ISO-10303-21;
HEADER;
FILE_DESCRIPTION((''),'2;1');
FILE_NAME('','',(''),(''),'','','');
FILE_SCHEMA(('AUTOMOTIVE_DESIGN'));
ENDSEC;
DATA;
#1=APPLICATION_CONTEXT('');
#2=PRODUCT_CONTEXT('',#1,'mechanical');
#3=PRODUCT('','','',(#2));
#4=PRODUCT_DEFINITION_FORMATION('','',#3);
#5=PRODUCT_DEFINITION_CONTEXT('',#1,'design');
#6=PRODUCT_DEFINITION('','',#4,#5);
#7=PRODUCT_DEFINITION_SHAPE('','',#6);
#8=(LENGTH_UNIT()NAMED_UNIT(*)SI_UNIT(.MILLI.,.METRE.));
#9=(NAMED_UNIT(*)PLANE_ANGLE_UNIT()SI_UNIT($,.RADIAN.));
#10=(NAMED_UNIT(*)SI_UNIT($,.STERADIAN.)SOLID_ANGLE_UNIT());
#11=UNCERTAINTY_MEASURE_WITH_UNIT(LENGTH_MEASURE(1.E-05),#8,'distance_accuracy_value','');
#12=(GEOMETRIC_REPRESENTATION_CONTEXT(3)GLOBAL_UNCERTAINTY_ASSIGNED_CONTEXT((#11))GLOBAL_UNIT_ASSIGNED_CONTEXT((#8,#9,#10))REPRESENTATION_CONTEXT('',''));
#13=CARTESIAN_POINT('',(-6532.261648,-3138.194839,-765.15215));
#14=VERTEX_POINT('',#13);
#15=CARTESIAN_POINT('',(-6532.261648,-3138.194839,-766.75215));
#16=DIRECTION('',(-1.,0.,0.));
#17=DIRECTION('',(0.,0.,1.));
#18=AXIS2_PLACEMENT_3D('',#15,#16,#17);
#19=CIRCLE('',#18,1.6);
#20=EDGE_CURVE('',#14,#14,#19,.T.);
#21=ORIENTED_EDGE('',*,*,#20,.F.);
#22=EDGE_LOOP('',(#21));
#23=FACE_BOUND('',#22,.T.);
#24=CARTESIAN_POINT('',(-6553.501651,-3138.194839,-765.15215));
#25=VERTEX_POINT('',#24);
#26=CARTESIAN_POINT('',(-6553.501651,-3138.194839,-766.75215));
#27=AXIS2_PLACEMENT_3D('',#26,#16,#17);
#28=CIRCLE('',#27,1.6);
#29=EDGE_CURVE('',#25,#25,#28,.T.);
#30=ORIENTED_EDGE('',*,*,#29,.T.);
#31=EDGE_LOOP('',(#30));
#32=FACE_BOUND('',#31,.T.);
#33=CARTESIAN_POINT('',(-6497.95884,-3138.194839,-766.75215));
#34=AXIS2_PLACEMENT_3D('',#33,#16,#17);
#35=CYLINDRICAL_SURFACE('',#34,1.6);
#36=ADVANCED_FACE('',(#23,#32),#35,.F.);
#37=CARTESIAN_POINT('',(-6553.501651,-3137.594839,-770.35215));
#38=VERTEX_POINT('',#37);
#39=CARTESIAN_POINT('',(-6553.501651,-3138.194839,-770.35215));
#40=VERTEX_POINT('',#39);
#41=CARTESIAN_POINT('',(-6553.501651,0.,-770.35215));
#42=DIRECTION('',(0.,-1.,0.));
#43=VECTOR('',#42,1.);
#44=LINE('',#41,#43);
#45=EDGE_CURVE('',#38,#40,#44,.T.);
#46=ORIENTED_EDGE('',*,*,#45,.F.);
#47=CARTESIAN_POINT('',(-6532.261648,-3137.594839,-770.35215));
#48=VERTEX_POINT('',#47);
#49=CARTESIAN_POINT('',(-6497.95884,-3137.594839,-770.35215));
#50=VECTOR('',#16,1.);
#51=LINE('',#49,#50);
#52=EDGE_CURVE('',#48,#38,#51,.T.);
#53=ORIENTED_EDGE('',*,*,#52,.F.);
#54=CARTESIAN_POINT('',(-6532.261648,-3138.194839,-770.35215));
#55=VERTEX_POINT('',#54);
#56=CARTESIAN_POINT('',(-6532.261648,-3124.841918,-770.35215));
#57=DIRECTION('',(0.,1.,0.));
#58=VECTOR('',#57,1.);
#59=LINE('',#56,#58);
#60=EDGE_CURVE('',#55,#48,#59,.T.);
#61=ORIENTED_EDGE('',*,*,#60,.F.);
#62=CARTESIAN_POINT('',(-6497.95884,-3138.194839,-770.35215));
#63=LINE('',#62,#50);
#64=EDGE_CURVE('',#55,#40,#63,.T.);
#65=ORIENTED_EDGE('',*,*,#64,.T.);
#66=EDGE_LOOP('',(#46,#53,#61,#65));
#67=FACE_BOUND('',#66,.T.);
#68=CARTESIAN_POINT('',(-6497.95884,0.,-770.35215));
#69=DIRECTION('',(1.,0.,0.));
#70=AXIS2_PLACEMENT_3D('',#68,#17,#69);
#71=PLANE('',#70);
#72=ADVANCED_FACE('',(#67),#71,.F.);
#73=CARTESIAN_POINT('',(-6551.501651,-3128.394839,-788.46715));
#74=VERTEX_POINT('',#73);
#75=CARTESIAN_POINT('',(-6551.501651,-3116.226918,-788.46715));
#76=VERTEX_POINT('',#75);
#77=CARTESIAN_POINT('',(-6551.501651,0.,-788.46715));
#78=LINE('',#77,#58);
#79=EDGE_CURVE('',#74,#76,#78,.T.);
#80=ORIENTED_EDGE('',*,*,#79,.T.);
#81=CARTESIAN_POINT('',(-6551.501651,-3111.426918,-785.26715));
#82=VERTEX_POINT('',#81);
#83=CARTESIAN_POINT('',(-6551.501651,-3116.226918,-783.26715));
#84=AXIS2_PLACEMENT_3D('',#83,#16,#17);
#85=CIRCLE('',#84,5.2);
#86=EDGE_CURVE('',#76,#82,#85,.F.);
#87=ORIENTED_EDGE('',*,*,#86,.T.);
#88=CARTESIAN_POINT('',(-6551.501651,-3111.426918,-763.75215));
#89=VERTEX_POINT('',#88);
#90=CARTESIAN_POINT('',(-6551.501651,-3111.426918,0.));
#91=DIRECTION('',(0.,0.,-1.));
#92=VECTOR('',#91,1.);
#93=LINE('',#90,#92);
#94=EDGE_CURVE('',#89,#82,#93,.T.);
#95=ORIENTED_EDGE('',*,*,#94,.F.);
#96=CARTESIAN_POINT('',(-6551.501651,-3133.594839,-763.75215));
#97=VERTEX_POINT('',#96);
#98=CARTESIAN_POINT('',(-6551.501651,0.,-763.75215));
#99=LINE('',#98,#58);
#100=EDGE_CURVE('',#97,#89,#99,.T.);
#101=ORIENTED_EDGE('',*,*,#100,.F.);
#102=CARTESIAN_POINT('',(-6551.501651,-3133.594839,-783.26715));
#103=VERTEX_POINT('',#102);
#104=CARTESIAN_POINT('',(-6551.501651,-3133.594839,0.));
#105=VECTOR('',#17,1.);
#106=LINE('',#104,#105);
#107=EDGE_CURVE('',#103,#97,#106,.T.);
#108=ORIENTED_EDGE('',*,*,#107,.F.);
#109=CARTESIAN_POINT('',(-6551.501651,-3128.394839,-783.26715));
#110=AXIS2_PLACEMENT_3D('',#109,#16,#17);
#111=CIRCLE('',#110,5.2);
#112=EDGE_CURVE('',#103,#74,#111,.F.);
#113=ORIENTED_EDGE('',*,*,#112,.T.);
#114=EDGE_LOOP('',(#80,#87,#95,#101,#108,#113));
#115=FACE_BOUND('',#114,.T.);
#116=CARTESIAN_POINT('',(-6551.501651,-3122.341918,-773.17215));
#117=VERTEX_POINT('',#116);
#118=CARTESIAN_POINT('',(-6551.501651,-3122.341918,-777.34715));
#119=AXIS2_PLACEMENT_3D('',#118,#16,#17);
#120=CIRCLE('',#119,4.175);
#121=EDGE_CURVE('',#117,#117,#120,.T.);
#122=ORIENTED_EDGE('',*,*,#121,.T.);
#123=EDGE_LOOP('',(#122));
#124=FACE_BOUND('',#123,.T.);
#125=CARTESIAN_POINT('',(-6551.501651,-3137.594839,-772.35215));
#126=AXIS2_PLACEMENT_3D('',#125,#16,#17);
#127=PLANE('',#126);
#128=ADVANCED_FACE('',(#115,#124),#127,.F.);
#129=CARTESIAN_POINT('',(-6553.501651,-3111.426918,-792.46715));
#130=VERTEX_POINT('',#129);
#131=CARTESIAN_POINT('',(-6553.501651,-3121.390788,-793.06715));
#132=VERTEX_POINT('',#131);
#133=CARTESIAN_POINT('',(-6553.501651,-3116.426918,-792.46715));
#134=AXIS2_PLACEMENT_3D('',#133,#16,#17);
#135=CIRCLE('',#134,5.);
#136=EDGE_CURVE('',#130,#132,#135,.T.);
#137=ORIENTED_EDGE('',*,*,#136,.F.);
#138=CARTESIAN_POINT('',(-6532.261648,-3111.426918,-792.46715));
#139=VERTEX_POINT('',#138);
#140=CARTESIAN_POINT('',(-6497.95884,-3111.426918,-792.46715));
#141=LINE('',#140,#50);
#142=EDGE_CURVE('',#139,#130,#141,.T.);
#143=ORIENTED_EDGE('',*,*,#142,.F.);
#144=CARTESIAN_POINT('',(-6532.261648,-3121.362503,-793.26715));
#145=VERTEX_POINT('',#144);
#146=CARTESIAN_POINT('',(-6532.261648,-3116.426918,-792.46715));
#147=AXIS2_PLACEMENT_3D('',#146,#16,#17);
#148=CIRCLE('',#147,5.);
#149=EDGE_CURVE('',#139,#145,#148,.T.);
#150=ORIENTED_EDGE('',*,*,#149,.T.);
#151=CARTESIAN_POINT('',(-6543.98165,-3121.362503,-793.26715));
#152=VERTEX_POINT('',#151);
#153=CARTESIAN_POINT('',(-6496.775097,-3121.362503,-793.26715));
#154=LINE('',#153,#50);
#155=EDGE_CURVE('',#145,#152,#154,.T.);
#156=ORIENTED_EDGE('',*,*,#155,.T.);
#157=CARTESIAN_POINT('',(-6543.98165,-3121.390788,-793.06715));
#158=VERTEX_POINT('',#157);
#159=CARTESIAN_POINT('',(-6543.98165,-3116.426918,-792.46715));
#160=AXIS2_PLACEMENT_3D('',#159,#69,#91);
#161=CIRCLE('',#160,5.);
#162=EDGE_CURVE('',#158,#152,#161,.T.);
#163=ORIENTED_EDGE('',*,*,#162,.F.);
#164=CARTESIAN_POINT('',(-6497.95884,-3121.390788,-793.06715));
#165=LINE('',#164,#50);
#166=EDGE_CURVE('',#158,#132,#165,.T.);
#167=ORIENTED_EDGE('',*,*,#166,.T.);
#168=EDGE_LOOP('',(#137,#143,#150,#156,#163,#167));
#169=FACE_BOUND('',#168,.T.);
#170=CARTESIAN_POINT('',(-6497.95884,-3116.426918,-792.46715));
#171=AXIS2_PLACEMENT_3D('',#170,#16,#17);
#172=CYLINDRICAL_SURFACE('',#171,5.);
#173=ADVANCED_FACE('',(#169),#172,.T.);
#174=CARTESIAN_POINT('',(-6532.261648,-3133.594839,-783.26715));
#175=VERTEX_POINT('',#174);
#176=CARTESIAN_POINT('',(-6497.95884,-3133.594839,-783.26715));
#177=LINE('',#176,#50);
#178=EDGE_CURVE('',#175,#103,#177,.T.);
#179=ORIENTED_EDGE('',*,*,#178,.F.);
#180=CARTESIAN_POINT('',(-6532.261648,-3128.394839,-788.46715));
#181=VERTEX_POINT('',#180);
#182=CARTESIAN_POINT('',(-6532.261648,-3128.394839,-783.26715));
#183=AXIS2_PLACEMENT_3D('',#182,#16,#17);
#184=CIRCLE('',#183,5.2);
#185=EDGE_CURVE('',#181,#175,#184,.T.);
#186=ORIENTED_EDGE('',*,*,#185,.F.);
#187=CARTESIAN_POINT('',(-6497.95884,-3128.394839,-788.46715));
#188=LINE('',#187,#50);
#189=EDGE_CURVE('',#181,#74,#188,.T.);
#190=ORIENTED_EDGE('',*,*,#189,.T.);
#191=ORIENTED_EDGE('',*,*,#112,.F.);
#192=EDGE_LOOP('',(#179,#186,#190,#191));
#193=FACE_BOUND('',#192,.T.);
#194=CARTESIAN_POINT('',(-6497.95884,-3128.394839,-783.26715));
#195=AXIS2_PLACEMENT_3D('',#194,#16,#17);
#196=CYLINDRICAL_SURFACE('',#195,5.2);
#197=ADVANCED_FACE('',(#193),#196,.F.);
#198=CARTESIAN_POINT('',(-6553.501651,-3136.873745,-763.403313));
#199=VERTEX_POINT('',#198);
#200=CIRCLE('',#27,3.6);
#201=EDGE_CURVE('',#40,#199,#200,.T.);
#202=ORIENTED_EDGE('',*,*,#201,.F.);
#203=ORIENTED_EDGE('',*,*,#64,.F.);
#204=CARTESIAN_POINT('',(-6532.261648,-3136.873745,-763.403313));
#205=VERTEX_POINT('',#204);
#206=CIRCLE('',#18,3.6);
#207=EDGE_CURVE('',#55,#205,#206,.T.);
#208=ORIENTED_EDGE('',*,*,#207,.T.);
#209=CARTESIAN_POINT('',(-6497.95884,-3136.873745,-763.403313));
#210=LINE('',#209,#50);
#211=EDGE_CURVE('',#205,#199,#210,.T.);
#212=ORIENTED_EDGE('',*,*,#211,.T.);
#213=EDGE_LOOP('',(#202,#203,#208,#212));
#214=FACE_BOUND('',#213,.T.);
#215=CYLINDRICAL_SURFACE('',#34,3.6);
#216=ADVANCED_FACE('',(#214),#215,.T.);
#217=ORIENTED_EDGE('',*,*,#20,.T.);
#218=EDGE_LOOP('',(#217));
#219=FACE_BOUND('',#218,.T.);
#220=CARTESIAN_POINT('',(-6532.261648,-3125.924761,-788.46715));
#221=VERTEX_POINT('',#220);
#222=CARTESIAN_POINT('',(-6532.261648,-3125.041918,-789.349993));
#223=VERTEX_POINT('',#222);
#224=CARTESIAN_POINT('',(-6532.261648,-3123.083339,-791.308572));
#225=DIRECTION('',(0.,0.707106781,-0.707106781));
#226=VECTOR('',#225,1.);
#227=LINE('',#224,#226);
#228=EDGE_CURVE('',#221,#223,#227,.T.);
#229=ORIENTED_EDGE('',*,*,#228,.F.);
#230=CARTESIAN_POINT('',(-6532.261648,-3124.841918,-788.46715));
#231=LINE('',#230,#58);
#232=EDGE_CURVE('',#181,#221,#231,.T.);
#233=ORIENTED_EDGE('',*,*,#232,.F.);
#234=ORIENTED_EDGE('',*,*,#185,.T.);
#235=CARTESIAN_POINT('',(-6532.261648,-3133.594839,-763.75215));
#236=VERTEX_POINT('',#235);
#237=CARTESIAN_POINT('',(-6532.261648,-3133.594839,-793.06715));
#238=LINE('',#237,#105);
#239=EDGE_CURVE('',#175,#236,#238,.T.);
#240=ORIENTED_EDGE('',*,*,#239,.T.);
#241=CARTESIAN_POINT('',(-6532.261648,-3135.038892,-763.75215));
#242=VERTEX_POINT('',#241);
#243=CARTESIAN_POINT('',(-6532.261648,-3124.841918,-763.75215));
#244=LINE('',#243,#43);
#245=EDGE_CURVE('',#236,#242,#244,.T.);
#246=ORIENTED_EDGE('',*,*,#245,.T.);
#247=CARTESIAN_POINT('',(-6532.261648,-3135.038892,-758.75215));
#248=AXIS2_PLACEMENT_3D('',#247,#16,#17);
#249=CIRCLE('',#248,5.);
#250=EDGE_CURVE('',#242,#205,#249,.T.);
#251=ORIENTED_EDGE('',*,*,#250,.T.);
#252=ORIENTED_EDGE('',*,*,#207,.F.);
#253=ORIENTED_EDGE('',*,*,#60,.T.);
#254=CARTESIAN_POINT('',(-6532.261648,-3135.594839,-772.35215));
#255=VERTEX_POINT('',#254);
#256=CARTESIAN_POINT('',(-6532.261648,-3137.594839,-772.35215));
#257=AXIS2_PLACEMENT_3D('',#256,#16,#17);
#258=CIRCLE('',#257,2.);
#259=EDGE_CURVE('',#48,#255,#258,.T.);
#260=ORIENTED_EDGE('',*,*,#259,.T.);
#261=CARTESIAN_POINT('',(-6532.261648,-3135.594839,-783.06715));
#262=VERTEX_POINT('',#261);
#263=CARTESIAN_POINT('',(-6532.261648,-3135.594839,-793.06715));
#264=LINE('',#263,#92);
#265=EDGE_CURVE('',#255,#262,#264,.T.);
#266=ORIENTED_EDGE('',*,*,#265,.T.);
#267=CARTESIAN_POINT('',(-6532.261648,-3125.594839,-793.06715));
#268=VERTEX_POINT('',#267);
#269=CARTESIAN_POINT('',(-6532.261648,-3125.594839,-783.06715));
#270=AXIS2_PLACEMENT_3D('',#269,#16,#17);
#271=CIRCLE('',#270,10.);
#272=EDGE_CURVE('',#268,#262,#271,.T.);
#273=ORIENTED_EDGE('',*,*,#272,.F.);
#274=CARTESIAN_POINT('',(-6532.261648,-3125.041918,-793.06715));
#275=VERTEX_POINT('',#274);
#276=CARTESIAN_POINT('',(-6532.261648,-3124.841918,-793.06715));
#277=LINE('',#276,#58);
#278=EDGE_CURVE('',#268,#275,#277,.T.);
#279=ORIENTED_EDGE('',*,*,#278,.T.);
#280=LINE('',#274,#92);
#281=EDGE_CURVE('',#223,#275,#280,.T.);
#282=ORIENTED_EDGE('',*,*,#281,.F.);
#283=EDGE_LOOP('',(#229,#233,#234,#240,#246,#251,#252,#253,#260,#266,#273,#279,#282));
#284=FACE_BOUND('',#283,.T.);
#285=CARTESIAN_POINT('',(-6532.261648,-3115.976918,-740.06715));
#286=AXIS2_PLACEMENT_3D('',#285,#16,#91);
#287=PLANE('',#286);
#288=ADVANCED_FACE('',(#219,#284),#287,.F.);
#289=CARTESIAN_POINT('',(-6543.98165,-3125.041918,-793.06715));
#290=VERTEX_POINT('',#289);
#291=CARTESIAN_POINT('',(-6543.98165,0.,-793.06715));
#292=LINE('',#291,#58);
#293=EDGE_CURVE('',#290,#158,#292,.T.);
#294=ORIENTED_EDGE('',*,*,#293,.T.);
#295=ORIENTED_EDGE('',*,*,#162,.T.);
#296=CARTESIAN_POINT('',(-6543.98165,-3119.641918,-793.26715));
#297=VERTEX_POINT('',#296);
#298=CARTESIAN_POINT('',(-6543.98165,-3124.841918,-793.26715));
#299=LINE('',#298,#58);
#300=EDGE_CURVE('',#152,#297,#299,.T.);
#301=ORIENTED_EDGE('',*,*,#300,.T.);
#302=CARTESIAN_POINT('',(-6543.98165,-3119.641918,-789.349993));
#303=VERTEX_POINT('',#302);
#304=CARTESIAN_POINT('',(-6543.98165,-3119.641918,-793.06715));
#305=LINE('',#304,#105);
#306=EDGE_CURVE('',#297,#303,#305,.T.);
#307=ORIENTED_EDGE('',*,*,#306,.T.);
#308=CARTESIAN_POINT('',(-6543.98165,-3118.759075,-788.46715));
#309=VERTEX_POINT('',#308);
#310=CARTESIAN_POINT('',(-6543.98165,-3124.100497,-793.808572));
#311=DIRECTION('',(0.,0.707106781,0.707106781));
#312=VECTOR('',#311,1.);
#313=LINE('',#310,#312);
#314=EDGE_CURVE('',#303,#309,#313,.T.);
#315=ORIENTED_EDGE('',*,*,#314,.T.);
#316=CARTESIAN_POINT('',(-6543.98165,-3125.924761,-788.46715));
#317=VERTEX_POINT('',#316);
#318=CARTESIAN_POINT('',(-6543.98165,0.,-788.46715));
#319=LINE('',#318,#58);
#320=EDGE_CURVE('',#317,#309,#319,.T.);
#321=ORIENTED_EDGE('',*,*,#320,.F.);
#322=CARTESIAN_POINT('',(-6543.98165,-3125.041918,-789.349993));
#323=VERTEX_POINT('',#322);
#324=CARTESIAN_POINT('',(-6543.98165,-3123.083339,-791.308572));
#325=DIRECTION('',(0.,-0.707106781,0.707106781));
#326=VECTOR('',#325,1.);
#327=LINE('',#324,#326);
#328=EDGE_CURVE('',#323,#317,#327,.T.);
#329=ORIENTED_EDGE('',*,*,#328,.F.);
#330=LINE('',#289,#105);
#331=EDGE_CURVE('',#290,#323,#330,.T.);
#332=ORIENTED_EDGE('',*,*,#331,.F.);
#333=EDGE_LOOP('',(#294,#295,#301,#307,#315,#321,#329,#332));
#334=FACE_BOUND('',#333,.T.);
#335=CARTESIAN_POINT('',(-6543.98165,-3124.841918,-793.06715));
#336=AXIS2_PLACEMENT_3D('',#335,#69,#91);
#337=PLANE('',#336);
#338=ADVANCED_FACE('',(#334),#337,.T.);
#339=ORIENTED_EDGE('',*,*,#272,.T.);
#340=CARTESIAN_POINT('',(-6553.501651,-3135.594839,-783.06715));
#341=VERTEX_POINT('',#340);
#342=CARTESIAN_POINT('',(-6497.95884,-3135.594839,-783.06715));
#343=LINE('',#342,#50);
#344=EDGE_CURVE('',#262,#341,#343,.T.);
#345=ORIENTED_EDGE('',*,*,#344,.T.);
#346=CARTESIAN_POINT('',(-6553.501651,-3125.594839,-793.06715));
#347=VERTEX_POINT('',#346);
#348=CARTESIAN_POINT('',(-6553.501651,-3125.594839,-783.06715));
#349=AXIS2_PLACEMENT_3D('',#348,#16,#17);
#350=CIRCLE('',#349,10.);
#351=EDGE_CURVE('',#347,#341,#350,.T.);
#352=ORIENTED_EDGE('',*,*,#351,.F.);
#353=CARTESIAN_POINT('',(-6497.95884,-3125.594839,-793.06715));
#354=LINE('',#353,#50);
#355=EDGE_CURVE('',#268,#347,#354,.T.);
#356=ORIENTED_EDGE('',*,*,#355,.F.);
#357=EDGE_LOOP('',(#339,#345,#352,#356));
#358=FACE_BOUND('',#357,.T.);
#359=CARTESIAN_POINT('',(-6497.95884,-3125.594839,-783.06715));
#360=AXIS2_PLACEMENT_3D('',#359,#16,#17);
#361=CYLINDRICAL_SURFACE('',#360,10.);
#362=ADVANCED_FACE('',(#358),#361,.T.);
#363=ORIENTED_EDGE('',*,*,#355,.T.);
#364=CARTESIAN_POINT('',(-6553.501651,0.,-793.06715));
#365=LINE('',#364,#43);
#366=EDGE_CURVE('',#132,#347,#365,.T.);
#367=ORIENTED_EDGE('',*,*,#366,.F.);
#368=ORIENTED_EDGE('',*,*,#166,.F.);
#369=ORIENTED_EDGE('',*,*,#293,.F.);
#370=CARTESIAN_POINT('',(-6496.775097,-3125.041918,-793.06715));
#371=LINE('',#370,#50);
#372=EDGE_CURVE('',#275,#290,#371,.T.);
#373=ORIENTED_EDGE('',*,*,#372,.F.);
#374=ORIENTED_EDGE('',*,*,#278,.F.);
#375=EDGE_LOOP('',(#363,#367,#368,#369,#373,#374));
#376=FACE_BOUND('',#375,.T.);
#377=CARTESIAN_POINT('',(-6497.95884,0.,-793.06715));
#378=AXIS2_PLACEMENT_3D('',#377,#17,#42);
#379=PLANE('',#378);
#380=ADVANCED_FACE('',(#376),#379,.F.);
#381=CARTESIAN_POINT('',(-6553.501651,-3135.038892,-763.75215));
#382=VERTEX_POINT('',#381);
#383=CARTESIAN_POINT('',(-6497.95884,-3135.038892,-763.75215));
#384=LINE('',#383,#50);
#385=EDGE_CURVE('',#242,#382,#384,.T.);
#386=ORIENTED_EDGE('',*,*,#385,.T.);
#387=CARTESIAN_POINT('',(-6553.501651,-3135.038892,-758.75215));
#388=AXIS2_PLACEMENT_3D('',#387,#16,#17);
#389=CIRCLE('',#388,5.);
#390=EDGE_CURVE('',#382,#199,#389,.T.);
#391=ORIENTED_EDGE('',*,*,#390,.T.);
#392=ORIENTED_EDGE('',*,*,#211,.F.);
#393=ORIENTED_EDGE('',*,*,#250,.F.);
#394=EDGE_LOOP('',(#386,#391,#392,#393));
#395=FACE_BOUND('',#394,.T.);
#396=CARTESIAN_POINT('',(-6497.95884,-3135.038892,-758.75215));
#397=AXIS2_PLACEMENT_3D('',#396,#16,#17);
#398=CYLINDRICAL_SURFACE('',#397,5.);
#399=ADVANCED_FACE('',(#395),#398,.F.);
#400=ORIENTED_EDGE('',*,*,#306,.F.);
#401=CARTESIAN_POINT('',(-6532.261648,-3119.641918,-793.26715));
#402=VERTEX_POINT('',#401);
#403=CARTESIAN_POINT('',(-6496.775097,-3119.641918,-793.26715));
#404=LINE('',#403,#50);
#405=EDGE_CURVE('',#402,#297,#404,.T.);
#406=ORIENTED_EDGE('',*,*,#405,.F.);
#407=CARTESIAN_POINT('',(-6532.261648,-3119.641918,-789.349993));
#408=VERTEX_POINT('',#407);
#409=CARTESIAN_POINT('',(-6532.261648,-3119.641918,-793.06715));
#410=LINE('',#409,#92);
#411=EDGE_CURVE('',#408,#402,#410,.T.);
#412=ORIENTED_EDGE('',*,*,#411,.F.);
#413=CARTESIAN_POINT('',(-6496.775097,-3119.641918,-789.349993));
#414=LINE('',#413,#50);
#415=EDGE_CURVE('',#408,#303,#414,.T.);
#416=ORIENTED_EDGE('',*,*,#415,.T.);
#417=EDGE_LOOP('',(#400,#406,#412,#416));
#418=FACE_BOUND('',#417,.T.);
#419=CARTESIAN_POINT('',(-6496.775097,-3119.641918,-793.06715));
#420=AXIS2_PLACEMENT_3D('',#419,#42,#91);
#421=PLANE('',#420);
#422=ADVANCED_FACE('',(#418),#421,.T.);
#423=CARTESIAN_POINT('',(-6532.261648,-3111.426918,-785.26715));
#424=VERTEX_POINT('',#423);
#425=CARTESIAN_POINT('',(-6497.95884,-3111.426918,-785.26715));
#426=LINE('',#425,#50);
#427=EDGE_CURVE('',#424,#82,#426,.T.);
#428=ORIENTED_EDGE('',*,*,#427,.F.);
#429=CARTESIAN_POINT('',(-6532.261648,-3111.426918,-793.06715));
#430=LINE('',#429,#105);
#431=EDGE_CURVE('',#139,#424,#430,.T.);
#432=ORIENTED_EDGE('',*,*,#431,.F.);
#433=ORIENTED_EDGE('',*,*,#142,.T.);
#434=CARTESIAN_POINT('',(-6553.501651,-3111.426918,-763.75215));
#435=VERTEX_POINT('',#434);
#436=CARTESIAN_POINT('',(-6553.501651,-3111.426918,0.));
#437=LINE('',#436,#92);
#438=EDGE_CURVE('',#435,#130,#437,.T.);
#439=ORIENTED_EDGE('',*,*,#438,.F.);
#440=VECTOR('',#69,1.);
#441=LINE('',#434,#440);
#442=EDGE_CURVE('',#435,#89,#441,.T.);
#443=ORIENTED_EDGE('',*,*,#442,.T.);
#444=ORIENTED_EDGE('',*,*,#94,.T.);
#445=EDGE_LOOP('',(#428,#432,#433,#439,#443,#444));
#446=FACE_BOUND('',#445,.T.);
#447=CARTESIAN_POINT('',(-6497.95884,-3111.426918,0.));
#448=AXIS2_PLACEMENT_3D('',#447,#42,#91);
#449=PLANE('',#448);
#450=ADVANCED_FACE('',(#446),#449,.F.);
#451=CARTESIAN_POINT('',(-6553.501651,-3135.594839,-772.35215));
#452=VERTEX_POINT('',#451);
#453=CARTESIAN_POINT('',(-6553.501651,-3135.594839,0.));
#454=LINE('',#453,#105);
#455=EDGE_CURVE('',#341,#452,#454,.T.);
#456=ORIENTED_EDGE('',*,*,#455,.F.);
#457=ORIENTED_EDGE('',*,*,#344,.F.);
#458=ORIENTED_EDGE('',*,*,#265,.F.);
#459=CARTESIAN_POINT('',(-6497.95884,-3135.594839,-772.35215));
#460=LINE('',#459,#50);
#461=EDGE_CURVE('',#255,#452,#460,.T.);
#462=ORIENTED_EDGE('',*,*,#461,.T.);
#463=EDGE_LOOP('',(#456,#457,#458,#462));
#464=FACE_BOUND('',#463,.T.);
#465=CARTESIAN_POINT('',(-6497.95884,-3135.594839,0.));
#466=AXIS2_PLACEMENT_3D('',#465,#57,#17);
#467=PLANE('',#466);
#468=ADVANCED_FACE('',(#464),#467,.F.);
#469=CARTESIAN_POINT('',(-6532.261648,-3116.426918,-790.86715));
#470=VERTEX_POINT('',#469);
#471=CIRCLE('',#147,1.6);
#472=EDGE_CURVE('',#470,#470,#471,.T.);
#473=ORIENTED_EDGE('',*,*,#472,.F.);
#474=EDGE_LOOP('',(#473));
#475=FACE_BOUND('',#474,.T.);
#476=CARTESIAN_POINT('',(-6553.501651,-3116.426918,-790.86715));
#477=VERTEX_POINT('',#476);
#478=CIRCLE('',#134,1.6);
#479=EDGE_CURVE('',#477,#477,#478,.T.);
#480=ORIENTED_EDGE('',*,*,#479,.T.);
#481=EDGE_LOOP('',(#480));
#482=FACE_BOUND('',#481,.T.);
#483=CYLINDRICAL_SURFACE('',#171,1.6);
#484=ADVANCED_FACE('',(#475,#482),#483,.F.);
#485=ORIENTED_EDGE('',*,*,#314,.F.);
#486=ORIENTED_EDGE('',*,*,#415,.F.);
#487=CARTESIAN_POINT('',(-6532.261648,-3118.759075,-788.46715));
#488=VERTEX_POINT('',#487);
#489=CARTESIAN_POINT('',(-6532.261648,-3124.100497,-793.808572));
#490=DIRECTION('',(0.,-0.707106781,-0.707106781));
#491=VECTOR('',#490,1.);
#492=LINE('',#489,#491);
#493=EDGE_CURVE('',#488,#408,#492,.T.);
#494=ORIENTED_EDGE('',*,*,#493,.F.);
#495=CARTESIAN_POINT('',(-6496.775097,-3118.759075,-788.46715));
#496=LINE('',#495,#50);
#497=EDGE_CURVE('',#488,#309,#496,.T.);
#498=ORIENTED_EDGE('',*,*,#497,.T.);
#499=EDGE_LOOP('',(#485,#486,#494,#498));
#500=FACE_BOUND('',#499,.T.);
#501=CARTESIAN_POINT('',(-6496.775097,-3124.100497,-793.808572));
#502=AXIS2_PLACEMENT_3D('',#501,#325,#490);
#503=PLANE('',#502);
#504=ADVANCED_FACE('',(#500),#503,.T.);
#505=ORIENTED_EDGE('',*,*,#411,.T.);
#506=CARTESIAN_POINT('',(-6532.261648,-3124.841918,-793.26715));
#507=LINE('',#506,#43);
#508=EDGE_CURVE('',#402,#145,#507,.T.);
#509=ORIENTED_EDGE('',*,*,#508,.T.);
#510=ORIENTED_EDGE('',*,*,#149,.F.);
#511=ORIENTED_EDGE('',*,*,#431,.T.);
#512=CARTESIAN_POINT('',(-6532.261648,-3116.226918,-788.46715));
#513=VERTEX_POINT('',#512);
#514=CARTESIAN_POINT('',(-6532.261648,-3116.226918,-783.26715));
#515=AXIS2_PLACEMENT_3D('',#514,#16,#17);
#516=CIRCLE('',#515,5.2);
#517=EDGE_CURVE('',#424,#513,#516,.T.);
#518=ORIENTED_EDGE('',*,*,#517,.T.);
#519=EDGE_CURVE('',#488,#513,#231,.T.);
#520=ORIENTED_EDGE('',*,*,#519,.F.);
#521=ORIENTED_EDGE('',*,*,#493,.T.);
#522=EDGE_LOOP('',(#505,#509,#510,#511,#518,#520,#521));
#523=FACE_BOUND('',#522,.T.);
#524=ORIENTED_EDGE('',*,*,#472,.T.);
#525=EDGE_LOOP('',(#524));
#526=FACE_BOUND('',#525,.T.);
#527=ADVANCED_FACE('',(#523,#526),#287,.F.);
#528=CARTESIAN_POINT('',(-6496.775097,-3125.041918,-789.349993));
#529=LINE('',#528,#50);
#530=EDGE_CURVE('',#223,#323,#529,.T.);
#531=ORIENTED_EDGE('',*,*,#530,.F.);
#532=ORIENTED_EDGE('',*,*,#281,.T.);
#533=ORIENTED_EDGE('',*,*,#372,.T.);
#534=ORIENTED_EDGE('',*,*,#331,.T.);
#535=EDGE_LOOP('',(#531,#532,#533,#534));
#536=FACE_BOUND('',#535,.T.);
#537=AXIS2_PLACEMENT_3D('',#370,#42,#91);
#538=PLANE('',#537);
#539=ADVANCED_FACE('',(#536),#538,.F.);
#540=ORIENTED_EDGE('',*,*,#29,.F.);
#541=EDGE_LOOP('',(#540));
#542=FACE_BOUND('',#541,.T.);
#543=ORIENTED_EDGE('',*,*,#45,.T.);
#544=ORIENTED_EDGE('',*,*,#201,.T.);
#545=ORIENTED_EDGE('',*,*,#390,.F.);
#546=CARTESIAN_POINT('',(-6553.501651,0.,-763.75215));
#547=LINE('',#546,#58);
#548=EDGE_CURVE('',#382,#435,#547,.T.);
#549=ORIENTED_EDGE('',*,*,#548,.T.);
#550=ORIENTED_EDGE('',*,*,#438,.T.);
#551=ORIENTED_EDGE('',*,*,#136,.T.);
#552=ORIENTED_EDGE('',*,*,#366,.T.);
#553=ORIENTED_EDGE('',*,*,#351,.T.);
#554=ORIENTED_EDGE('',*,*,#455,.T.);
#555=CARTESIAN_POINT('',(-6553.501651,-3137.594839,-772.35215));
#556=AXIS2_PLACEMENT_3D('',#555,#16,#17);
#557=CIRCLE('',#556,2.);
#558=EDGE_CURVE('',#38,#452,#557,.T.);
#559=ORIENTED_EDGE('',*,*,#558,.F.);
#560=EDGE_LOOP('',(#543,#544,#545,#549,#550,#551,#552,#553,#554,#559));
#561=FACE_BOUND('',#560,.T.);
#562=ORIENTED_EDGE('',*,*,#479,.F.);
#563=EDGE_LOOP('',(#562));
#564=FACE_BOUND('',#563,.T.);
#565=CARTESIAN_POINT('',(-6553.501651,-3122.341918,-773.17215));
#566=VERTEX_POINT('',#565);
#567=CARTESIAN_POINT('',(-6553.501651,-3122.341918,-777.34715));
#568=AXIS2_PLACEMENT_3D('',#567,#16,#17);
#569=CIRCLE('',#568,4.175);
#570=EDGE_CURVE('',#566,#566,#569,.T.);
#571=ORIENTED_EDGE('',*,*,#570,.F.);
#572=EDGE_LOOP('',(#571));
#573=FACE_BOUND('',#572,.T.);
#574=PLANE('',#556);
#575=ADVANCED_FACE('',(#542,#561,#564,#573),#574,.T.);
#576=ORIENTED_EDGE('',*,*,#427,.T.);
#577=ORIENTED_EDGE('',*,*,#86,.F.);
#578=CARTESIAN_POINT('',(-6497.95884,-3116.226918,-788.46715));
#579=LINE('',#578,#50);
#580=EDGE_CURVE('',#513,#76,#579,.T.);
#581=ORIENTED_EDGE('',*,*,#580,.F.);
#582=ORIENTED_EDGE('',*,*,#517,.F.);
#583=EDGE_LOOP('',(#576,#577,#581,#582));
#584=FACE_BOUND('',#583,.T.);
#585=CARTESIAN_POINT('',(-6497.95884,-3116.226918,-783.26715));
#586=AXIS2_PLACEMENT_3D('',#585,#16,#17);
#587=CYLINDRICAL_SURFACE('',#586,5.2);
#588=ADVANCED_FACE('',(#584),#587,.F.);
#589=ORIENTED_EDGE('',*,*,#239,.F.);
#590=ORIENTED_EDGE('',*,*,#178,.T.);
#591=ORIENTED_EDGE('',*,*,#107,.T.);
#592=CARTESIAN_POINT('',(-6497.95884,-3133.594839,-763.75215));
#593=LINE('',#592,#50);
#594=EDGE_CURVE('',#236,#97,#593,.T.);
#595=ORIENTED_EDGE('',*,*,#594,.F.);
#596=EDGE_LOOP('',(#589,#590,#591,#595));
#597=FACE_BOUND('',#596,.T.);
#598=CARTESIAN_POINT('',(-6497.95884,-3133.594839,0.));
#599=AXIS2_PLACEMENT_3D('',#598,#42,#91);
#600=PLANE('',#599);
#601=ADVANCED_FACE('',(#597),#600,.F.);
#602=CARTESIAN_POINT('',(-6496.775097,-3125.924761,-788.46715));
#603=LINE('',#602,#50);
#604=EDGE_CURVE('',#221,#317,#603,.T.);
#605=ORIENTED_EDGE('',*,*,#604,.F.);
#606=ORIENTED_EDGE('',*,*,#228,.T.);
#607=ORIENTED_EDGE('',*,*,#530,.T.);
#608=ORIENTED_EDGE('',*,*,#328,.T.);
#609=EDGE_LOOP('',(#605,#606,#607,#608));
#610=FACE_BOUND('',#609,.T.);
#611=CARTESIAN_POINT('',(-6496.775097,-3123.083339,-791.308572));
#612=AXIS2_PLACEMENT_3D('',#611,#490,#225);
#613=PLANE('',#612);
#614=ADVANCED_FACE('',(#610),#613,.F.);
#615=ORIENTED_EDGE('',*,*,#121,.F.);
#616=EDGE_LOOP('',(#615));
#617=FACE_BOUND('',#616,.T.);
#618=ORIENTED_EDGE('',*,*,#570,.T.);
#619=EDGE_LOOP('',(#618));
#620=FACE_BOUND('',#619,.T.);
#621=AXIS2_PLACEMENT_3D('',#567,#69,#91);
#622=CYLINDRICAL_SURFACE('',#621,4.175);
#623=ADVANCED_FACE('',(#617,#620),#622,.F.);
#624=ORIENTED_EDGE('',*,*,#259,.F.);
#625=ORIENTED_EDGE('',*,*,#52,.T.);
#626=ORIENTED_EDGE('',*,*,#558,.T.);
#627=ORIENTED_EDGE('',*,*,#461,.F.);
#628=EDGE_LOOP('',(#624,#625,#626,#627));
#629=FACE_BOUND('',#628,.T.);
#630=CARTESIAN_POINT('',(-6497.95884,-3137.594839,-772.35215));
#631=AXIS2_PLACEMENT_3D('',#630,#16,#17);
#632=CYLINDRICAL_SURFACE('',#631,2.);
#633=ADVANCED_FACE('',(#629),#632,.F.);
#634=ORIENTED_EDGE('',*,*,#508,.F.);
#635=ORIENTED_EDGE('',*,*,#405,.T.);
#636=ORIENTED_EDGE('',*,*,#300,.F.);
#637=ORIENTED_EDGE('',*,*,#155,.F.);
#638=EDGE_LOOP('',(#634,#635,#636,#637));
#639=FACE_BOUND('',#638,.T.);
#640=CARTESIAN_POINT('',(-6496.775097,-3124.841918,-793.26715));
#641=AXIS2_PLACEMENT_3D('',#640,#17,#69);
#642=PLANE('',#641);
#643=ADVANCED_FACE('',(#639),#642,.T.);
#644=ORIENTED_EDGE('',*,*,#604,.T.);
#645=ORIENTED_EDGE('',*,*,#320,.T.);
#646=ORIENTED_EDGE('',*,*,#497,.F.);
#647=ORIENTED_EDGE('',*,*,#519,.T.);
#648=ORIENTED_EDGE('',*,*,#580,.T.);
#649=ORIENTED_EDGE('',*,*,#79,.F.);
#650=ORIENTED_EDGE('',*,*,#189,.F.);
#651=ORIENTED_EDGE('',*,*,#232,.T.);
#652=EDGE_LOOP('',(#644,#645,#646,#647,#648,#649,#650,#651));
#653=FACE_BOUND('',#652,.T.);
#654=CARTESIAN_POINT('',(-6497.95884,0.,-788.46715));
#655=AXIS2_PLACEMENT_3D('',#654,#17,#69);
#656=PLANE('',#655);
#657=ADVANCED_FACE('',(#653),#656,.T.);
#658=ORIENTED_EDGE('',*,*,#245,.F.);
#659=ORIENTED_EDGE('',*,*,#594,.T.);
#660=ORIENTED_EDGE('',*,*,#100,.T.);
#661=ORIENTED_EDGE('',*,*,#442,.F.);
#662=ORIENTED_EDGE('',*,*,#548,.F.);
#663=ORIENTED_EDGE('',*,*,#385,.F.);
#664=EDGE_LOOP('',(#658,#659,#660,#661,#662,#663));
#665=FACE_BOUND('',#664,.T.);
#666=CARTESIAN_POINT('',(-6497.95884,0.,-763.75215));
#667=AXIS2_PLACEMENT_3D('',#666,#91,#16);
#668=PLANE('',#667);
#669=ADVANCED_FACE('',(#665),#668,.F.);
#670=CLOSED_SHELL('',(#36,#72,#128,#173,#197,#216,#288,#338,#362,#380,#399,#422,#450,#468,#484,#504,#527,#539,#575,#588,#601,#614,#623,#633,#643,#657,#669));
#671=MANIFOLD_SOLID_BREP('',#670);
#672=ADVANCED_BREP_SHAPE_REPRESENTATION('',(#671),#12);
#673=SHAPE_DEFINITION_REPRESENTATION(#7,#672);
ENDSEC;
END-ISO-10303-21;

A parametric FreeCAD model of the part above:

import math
import FreeCAD as App
import Part
import Sketcher
from FreeCAD import Vector
Q = App.Units.Quantity

doc = App.newDocument("Part")
body = doc.addObject("PartDesign::Body", "Body")

# Sketch on YZ plane
sketch1 = doc.addObject("Sketcher::SketchObject", "Sketch")
body.addObject(sketch1)
sketch1.AttachmentSupport = (doc.YZ_Plane, [""])
sketch1.MapMode = "FlatFace"
sketch1.AttachmentOffset = App.Placement(Vector(0, 0, -6551.501651), App.Rotation())
sketch1.addGeometry(Part.LineSegment(Vector(-3133.594839, -783.26715, 0), Vector(-3133.594839, -763.75215, 0)), False)
sketch1.addGeometry(Part.LineSegment(Vector(-3133.594839, -763.75215, 0), Vector(-3135.038892, -763.75215, 0)), False)
sketch1.addGeometry(Part.ArcOfCircle(Part.Circle(Vector(-3135.038892, -758.752151, 0), Vector(0, 0, 1), 5), math.radians(-111.528904), math.radians(-90)), False)
sketch1.addGeometry(Part.ArcOfCircle(Part.Circle(Vector(-3138.194839, -766.75215, 0), Vector(0, 0, 1), 3.6), math.radians(68.471096), math.radians(270)), False)
sketch1.addGeometry(Part.LineSegment(Vector(-3138.194839, -770.35215, 0), Vector(-3137.594839, -770.35215, 0)), False)
sketch1.addGeometry(Part.ArcOfCircle(Part.Circle(Vector(-3137.594839, -772.35215, 0), Vector(0, 0, 1), 2), math.radians(0), math.radians(90)), False)
sketch1.addGeometry(Part.LineSegment(Vector(-3135.594839, -772.35215, 0), Vector(-3135.594839, -783.06715, 0)), False)
sketch1.addGeometry(Part.ArcOfCircle(Part.Circle(Vector(-3125.594839, -783.06715, 0), Vector(0, 0, 1), 10), math.radians(180), math.radians(270)), False)
sketch1.addGeometry(Part.LineSegment(Vector(-3125.594839, -793.06715, 0), Vector(-3121.390788, -793.06715, 0)), False)
sketch1.addGeometry(Part.ArcOfCircle(Part.Circle(Vector(-3116.426918, -792.46715, 0), Vector(0, 0, 1), 5), math.radians(-173.107897), math.radians(0)), False)
sketch1.addGeometry(Part.LineSegment(Vector(-3111.426918, -792.46715, 0), Vector(-3111.426918, -785.26715, 0)), False)
sketch1.addGeometry(Part.ArcOfCircle(Part.Circle(Vector(-3116.226918, -783.26715, 0), Vector(0, 0, 1), 5.2), math.radians(-90), math.radians(-22.619865)), False)
sketch1.addGeometry(Part.LineSegment(Vector(-3116.226918, -788.46715, 0), Vector(-3128.394839, -788.46715, 0)), False)
sketch1.addGeometry(Part.ArcOfCircle(Part.Circle(Vector(-3128.394839, -783.26715, 0), Vector(0, 0, 1), 5.2), math.radians(180), math.radians(270)), False)
sketch1.addGeometry(Part.Circle(Vector(-3138.194839, -766.75215, 0), Vector(0, 0, 1), 1.6), False)
sketch1.addGeometry(Part.Circle(Vector(-3116.426918, -792.46715, 0), Vector(0, 0, 1), 1.6), False)
sketch1.addConstraint(Sketcher.Constraint("Coincident", 0, 2, 1, 1))
sketch1.addConstraint(Sketcher.Constraint("Tangent", 1, 2, 2, 2))
sketch1.addConstraint(Sketcher.Constraint("Tangent", 2, 1, 3, 1))
sketch1.addConstraint(Sketcher.Constraint("Tangent", 3, 2, 4, 1))
sketch1.addConstraint(Sketcher.Constraint("Tangent", 4, 2, 5, 2))
sketch1.addConstraint(Sketcher.Constraint("Tangent", 5, 1, 6, 1))
sketch1.addConstraint(Sketcher.Constraint("Tangent", 6, 2, 7, 1))
sketch1.addConstraint(Sketcher.Constraint("Tangent", 7, 2, 8, 1))
sketch1.addConstraint(Sketcher.Constraint("Coincident", 8, 2, 9, 1))
sketch1.addConstraint(Sketcher.Constraint("Tangent", 9, 2, 10, 1))
sketch1.addConstraint(Sketcher.Constraint("Coincident", 10, 2, 11, 2))
sketch1.addConstraint(Sketcher.Constraint("Tangent", 11, 1, 12, 1))
sketch1.addConstraint(Sketcher.Constraint("Tangent", 12, 2, 13, 2))
sketch1.addConstraint(Sketcher.Constraint("Tangent", 13, 1, 0, 1))
sketch1.addConstraint(Sketcher.Constraint("Vertical", 0))
sketch1.addConstraint(Sketcher.Constraint("Horizontal", 1))
sketch1.addConstraint(Sketcher.Constraint("Horizontal", 4))
sketch1.addConstraint(Sketcher.Constraint("Vertical", 6))
sketch1.addConstraint(Sketcher.Constraint("Horizontal", 8))
sketch1.addConstraint(Sketcher.Constraint("Vertical", 10))
sketch1.addConstraint(Sketcher.Constraint("Horizontal", 12))
sketch1.addConstraint(Sketcher.Constraint("Coincident", 14, 3, 3, 3))
sketch1.addConstraint(Sketcher.Constraint("Coincident", 15, 3, 9, 3))
sketch1.addConstraint(Sketcher.Constraint("Equal", 2, 9))
sketch1.addConstraint(Sketcher.Constraint("Equal", 11, 13))
sketch1.addConstraint(Sketcher.Constraint("Equal", 14, 15))
sketch1.addConstraint(Sketcher.Constraint("Radius", 2, Q("5 mm")))
sketch1.addConstraint(Sketcher.Constraint("Radius", 5, Q("2 mm")))
sketch1.addConstraint(Sketcher.Constraint("Radius", 7, Q("10 mm")))
sketch1.addConstraint(Sketcher.Constraint("Diameter", 14, Q("3.2 mm")))
sketch1.addConstraint(Sketcher.Constraint("Radius", 3, Q("3.6 mm")))
sketch1.addConstraint(Sketcher.Constraint("Radius", 11, Q("5.2 mm")))
sketch1.addConstraint(Sketcher.Constraint("DistanceX", 4, 1, 4, 2, Q("0.6 mm")))
sketch1.addConstraint(Sketcher.Constraint("DistanceY", 10, 1, 10, 2, Q("7.2 mm")))
sketch1.addConstraint(Sketcher.Constraint("DistanceY", 3, 3, 2, 3, Q("8 mm")))
sketch1.addConstraint(Sketcher.Constraint("DistanceX", 5, 3, 0, 2, Q("4 mm")))
sketch1.addConstraint(Sketcher.Constraint("DistanceY", 10, 2, 11, 3, Q("2 mm")))
sketch1.addConstraint(Sketcher.Constraint("DistanceY", 9, 3, 7, 3, Q("9.4 mm")))
sketch1.addConstraint(Sketcher.Constraint("DistanceY", 0, 1, 0, 2, Q("19.515 mm")))
sketch1.addConstraint(Sketcher.Constraint("DistanceX", 8, 1, 8, 2, Q("4.204052 mm")))
sketch1.addConstraint(Sketcher.Constraint("DistanceY", 2, 3, -1, 1, Q("758.752151 mm")))
sketch1.addConstraint(Sketcher.Constraint("DistanceX", 3, 3, -1, 1, Q("3138.194839 mm")))
pad1 = doc.addObject("PartDesign::Pad", "Pad")
body.addObject(pad1)
pad1.Profile = sketch1
pad1.Length = 7.520002

# Sketch on YZ plane
sketch2 = doc.addObject("Sketcher::SketchObject", "Sketch001")
body.addObject(sketch2)
sketch2.AttachmentSupport = (doc.YZ_Plane, [""])
sketch2.MapMode = "FlatFace"
sketch2.AttachmentOffset = App.Placement(Vector(0, 0, -6551.501651), App.Rotation())
sketch2.addGeometry(Part.LineSegment(Vector(-3111.426918, -792.46715, 0), Vector(-3111.426918, -763.75215, 0)), False)
sketch2.addGeometry(Part.LineSegment(Vector(-3111.426918, -763.75215, 0), Vector(-3135.038892, -763.75215, 0)), False)
sketch2.addGeometry(Part.ArcOfCircle(Part.Circle(Vector(-3135.038892, -758.752151, 0), Vector(0, 0, 1), 5), math.radians(-111.528904), math.radians(-90)), False)
sketch2.addGeometry(Part.ArcOfCircle(Part.Circle(Vector(-3138.194839, -766.75215, 0), Vector(0, 0, 1), 3.6), math.radians(68.471096), math.radians(270)), False)
sketch2.addGeometry(Part.LineSegment(Vector(-3138.194839, -770.35215, 0), Vector(-3137.594839, -770.35215, 0)), False)
sketch2.addGeometry(Part.ArcOfCircle(Part.Circle(Vector(-3137.594839, -772.35215, 0), Vector(0, 0, 1), 2), math.radians(0), math.radians(90)), False)
sketch2.addGeometry(Part.LineSegment(Vector(-3135.594839, -772.35215, 0), Vector(-3135.594839, -783.06715, 0)), False)
sketch2.addGeometry(Part.ArcOfCircle(Part.Circle(Vector(-3125.594839, -783.06715, 0), Vector(0, 0, 1), 10), math.radians(180), math.radians(270)), False)
sketch2.addGeometry(Part.LineSegment(Vector(-3125.594839, -793.06715, 0), Vector(-3121.390788, -793.06715, 0)), False)
sketch2.addGeometry(Part.ArcOfCircle(Part.Circle(Vector(-3116.426918, -792.46715, 0), Vector(0, 0, 1), 5), math.radians(-173.107897), math.radians(-170.793104)), False)
sketch2.addGeometry(Part.ArcOfCircle(Part.Circle(Vector(-3116.426918, -792.46715, 0), Vector(0, 0, 1), 5), math.radians(-170.793104), math.radians(-90)), False)
sketch2.addGeometry(Part.ArcOfCircle(Part.Circle(Vector(-3116.426918, -792.46715, 0), Vector(0, 0, 1), 5), math.radians(-90), math.radians(0)), False)
sketch2.addGeometry(Part.Circle(Vector(-3138.194839, -766.75215, 0), Vector(0, 0, 1), 1.6), False)
sketch2.addGeometry(Part.Circle(Vector(-3122.341918, -777.34715, 0), Vector(0, 0, 1), 4.175), False)
sketch2.addGeometry(Part.Circle(Vector(-3116.426918, -792.46715, 0), Vector(0, 0, 1), 1.6), False)
sketch2.addConstraint(Sketcher.Constraint("Coincident", 0, 2, 1, 1))
sketch2.addConstraint(Sketcher.Constraint("Tangent", 1, 2, 2, 2))
sketch2.addConstraint(Sketcher.Constraint("Tangent", 2, 1, 3, 1))
sketch2.addConstraint(Sketcher.Constraint("Tangent", 3, 2, 4, 1))
sketch2.addConstraint(Sketcher.Constraint("Tangent", 4, 2, 5, 2))
sketch2.addConstraint(Sketcher.Constraint("Tangent", 5, 1, 6, 1))
sketch2.addConstraint(Sketcher.Constraint("Tangent", 6, 2, 7, 1))
sketch2.addConstraint(Sketcher.Constraint("Tangent", 7, 2, 8, 1))
sketch2.addConstraint(Sketcher.Constraint("Coincident", 8, 2, 9, 1))
sketch2.addConstraint(Sketcher.Constraint("Tangent", 9, 2, 10, 1))
sketch2.addConstraint(Sketcher.Constraint("Tangent", 10, 2, 11, 1))
sketch2.addConstraint(Sketcher.Constraint("Tangent", 11, 2, 0, 1))
sketch2.addConstraint(Sketcher.Constraint("Vertical", 0))
sketch2.addConstraint(Sketcher.Constraint("Horizontal", 1))
sketch2.addConstraint(Sketcher.Constraint("Horizontal", 4))
sketch2.addConstraint(Sketcher.Constraint("Vertical", 6))
sketch2.addConstraint(Sketcher.Constraint("Horizontal", 8))
sketch2.addConstraint(Sketcher.Constraint("Coincident", 11, 3, 9, 3))
sketch2.addConstraint(Sketcher.Constraint("Coincident", 12, 3, 3, 3))
sketch2.addConstraint(Sketcher.Constraint("Coincident", 14, 3, 9, 3))
sketch2.addConstraint(Sketcher.Constraint("Equal", 2, 9))
sketch2.addConstraint(Sketcher.Constraint("Equal", 12, 14))
sketch2.addConstraint(Sketcher.Constraint("Vertical", 14, 3, 10, 2))
sketch2.addConstraint(Sketcher.Constraint("Radius", 2, Q("5 mm")))
sketch2.addConstraint(Sketcher.Constraint("Radius", 5, Q("2 mm")))
sketch2.addConstraint(Sketcher.Constraint("Radius", 7, Q("10 mm")))
sketch2.addConstraint(Sketcher.Constraint("Diameter", 12, Q("3.2 mm")))
sketch2.addConstraint(Sketcher.Constraint("Radius", 3, Q("3.6 mm")))
sketch2.addConstraint(Sketcher.Constraint("Diameter", 13, Q("8.35 mm")))
sketch2.addConstraint(Sketcher.Constraint("DistanceX", 4, 1, 4, 2, Q("0.6 mm")))
sketch2.addConstraint(Sketcher.Constraint("DistanceY", 3, 3, 2, 3, Q("8 mm")))
sketch2.addConstraint(Sketcher.Constraint("DistanceY", 9, 3, 7, 3, Q("9.4 mm")))
sketch2.addConstraint(Sketcher.Constraint("DistanceY", 9, 2, 8, 2, Q("0.2 mm")))
sketch2.addConstraint(Sketcher.Constraint("DistanceY", 0, 1, 0, 2, Q("28.715 mm")))
sketch2.addConstraint(Sketcher.Constraint("DistanceY", 7, 3, 13, 3, Q("5.72 mm")))
sketch2.addConstraint(Sketcher.Constraint("DistanceX", 13, 3, 11, 3, Q("5.915 mm")))
sketch2.addConstraint(Sketcher.Constraint("DistanceX", 8, 1, 8, 2, Q("4.204052 mm")))
sketch2.addConstraint(Sketcher.Constraint("DistanceY", 2, 3, -1, 1, Q("758.752151 mm")))
sketch2.addConstraint(Sketcher.Constraint("DistanceX", 3, 3, -1, 1, Q("3138.194839 mm")))
pad2 = doc.addObject("PartDesign::Pad", "Pad001")
body.addObject(pad2)
pad2.Profile = sketch2
pad2.Length = 2
pad2.Reversed = True

# Sketch on YZ plane
sketch3 = doc.addObject("Sketcher::SketchObject", "Sketch002")
body.addObject(sketch3)
sketch3.AttachmentSupport = (doc.YZ_Plane, [""])
sketch3.MapMode = "FlatFace"
sketch3.AttachmentOffset = App.Placement(Vector(0, 0, -6543.981649), App.Rotation())
sketch3.addGeometry(Part.LineSegment(Vector(-3133.594839, -783.26715, 0), Vector(-3133.594839, -763.75215, 0)), False)
sketch3.addGeometry(Part.LineSegment(Vector(-3133.594839, -763.75215, 0), Vector(-3135.038892, -763.75215, 0)), False)
sketch3.addGeometry(Part.ArcOfCircle(Part.Circle(Vector(-3135.038892, -758.752151, 0), Vector(0, 0, 1), 5), math.radians(-111.528904), math.radians(-90)), False)
sketch3.addGeometry(Part.ArcOfCircle(Part.Circle(Vector(-3138.194839, -766.75215, 0), Vector(0, 0, 1), 3.6), math.radians(68.471096), math.radians(270)), False)
sketch3.addGeometry(Part.LineSegment(Vector(-3138.194839, -770.35215, 0), Vector(-3137.594839, -770.35215, 0)), False)
sketch3.addGeometry(Part.ArcOfCircle(Part.Circle(Vector(-3137.594839, -772.35215, 0), Vector(0, 0, 1), 2), math.radians(0), math.radians(90)), False)
sketch3.addGeometry(Part.LineSegment(Vector(-3135.594839, -772.35215, 0), Vector(-3135.594839, -783.06715, 0)), False)
sketch3.addGeometry(Part.ArcOfCircle(Part.Circle(Vector(-3125.594839, -783.06715, 0), Vector(0, 0, 1), 10), math.radians(180), math.radians(270)), False)
sketch3.addGeometry(Part.LineSegment(Vector(-3125.594839, -793.06715, 0), Vector(-3125.041918, -793.06715, 0)), False)
sketch3.addGeometry(Part.LineSegment(Vector(-3125.041918, -793.06715, 0), Vector(-3125.041918, -789.349993, 0)), False)
sketch3.addGeometry(Part.LineSegment(Vector(-3125.041918, -789.349993, 0), Vector(-3125.924761, -788.46715, 0)), False)
sketch3.addGeometry(Part.LineSegment(Vector(-3125.924761, -788.46715, 0), Vector(-3128.394839, -788.46715, 0)), False)
sketch3.addGeometry(Part.ArcOfCircle(Part.Circle(Vector(-3128.394839, -783.26715, 0), Vector(0, 0, 1), 5.2), math.radians(180), math.radians(270)), False)
sketch3.addGeometry(Part.Circle(Vector(-3138.194839, -766.75215, 0), Vector(0, 0, 1), 1.6), False)
sketch3.addGeometry(Part.LineSegment(Vector(-3111.426918, -792.46715, 0), Vector(-3111.426918, -785.26715, 0)), False)
sketch3.addGeometry(Part.ArcOfCircle(Part.Circle(Vector(-3116.226918, -783.26715, 0), Vector(0, 0, 1), 5.2), math.radians(-90), math.radians(-22.619865)), False)
sketch3.addGeometry(Part.LineSegment(Vector(-3116.226918, -788.46715, 0), Vector(-3118.759075, -788.46715, 0)), False)
sketch3.addGeometry(Part.LineSegment(Vector(-3118.759075, -788.46715, 0), Vector(-3119.641918, -789.349993, 0)), False)
sketch3.addGeometry(Part.LineSegment(Vector(-3119.641918, -789.349993, 0), Vector(-3119.641918, -793.26715, 0)), False)
sketch3.addGeometry(Part.LineSegment(Vector(-3119.641918, -793.26715, 0), Vector(-3121.362503, -793.26715, 0)), False)
sketch3.addGeometry(Part.ArcOfCircle(Part.Circle(Vector(-3116.426918, -792.46715, 0), Vector(0, 0, 1), 5), math.radians(-170.793104), math.radians(0)), False)
sketch3.addGeometry(Part.Circle(Vector(-3116.426918, -792.46715, 0), Vector(0, 0, 1), 1.6), False)
sketch3.addConstraint(Sketcher.Constraint("Coincident", 0, 2, 1, 1))
sketch3.addConstraint(Sketcher.Constraint("Tangent", 1, 2, 2, 2))
sketch3.addConstraint(Sketcher.Constraint("Tangent", 2, 1, 3, 1))
sketch3.addConstraint(Sketcher.Constraint("Tangent", 3, 2, 4, 1))
sketch3.addConstraint(Sketcher.Constraint("Tangent", 4, 2, 5, 2))
sketch3.addConstraint(Sketcher.Constraint("Tangent", 5, 1, 6, 1))
sketch3.addConstraint(Sketcher.Constraint("Tangent", 6, 2, 7, 1))
sketch3.addConstraint(Sketcher.Constraint("Tangent", 7, 2, 8, 1))
sketch3.addConstraint(Sketcher.Constraint("Coincident", 8, 2, 9, 1))
sketch3.addConstraint(Sketcher.Constraint("Coincident", 9, 2, 10, 1))
sketch3.addConstraint(Sketcher.Constraint("Coincident", 10, 2, 11, 1))
sketch3.addConstraint(Sketcher.Constraint("Tangent", 11, 2, 12, 2))
sketch3.addConstraint(Sketcher.Constraint("Tangent", 12, 1, 0, 1))
sketch3.addConstraint(Sketcher.Constraint("Coincident", 14, 2, 15, 2))
sketch3.addConstraint(Sketcher.Constraint("Tangent", 15, 1, 16, 1))
sketch3.addConstraint(Sketcher.Constraint("Coincident", 16, 2, 17, 1))
sketch3.addConstraint(Sketcher.Constraint("Coincident", 17, 2, 18, 1))
sketch3.addConstraint(Sketcher.Constraint("Coincident", 18, 2, 19, 1))
sketch3.addConstraint(Sketcher.Constraint("Coincident", 19, 2, 20, 1))
sketch3.addConstraint(Sketcher.Constraint("Tangent", 20, 2, 14, 1))
sketch3.addConstraint(Sketcher.Constraint("Vertical", 0))
sketch3.addConstraint(Sketcher.Constraint("Horizontal", 1))
sketch3.addConstraint(Sketcher.Constraint("Horizontal", 4))
sketch3.addConstraint(Sketcher.Constraint("Vertical", 6))
sketch3.addConstraint(Sketcher.Constraint("Horizontal", 8))
sketch3.addConstraint(Sketcher.Constraint("Vertical", 9))
sketch3.addConstraint(Sketcher.Constraint("Horizontal", 11))
sketch3.addConstraint(Sketcher.Constraint("Vertical", 14))
sketch3.addConstraint(Sketcher.Constraint("Horizontal", 16))
sketch3.addConstraint(Sketcher.Constraint("Vertical", 18))
sketch3.addConstraint(Sketcher.Constraint("Horizontal", 19))
sketch3.addConstraint(Sketcher.Constraint("Coincident", 13, 3, 3, 3))
sketch3.addConstraint(Sketcher.Constraint("Coincident", 21, 3, 20, 3))
sketch3.addConstraint(Sketcher.Constraint("Equal", 12, 15))
sketch3.addConstraint(Sketcher.Constraint("Equal", 2, 20))
sketch3.addConstraint(Sketcher.Constraint("Equal", 13, 21))
sketch3.addConstraint(Sketcher.Constraint("Perpendicular", 10, 17))
sketch3.addConstraint(Sketcher.Constraint("Horizontal", 12, 3, 15, 3))
sketch3.addConstraint(Sketcher.Constraint("Horizontal", 9, 2, 17, 2))
sketch3.addConstraint(Sketcher.Constraint("Equal", 10, 17))
sketch3.addConstraint(Sketcher.Constraint("Radius", 2, Q("5 mm")))
sketch3.addConstraint(Sketcher.Constraint("Radius", 5, Q("2 mm")))
sketch3.addConstraint(Sketcher.Constraint("Radius", 7, Q("10 mm")))
sketch3.addConstraint(Sketcher.Constraint("Diameter", 13, Q("3.2 mm")))
sketch3.addConstraint(Sketcher.Constraint("Radius", 3, Q("3.6 mm")))
sketch3.addConstraint(Sketcher.Constraint("Radius", 12, Q("5.2 mm")))
sketch3.addConstraint(Sketcher.Constraint("DistanceX", 4, 1, 4, 2, Q("0.6 mm")))
sketch3.addConstraint(Sketcher.Constraint("DistanceY", 14, 1, 14, 2, Q("7.2 mm")))
sketch3.addConstraint(Sketcher.Constraint("DistanceY", 3, 3, 2, 3, Q("8 mm")))
sketch3.addConstraint(Sketcher.Constraint("DistanceX", 5, 3, 0, 2, Q("4 mm")))
sketch3.addConstraint(Sketcher.Constraint("DistanceY", 14, 2, 15, 3, Q("2 mm")))
sketch3.addConstraint(Sketcher.Constraint("DistanceY", 12, 3, 7, 3, Q("0.2 mm")))
sketch3.addConstraint(Sketcher.Constraint("DistanceX", 9, 2, 17, 2, Q("5.4 mm")))
sketch3.addConstraint(Sketcher.Constraint("DistanceY", 18, 2, 20, 3, Q("0.8 mm")))
sketch3.addConstraint(Sketcher.Constraint("DistanceY", 0, 1, 0, 2, Q("19.515 mm")))
sketch3.addConstraint(Sketcher.Constraint("DistanceX", 8, 2, 20, 3, Q("8.615 mm")))
sketch3.addConstraint(Sketcher.Constraint("DistanceX", 8, 1, 8, 2, Q("0.552921 mm")))
sketch3.addConstraint(Sketcher.Constraint("DistanceX", 11, 2, 11, 1, Q("2.470078 mm")))
sketch3.addConstraint(Sketcher.Constraint("DistanceY", 2, 3, -1, 1, Q("758.752151 mm")))
sketch3.addConstraint(Sketcher.Constraint("DistanceX", 3, 3, -1, 1, Q("3138.194839 mm")))
pad3 = doc.addObject("PartDesign::Pad", "Pad002")
body.addObject(pad3)
pad3.Profile = sketch3
pad3.Length = 11.720002

doc.recompute()
